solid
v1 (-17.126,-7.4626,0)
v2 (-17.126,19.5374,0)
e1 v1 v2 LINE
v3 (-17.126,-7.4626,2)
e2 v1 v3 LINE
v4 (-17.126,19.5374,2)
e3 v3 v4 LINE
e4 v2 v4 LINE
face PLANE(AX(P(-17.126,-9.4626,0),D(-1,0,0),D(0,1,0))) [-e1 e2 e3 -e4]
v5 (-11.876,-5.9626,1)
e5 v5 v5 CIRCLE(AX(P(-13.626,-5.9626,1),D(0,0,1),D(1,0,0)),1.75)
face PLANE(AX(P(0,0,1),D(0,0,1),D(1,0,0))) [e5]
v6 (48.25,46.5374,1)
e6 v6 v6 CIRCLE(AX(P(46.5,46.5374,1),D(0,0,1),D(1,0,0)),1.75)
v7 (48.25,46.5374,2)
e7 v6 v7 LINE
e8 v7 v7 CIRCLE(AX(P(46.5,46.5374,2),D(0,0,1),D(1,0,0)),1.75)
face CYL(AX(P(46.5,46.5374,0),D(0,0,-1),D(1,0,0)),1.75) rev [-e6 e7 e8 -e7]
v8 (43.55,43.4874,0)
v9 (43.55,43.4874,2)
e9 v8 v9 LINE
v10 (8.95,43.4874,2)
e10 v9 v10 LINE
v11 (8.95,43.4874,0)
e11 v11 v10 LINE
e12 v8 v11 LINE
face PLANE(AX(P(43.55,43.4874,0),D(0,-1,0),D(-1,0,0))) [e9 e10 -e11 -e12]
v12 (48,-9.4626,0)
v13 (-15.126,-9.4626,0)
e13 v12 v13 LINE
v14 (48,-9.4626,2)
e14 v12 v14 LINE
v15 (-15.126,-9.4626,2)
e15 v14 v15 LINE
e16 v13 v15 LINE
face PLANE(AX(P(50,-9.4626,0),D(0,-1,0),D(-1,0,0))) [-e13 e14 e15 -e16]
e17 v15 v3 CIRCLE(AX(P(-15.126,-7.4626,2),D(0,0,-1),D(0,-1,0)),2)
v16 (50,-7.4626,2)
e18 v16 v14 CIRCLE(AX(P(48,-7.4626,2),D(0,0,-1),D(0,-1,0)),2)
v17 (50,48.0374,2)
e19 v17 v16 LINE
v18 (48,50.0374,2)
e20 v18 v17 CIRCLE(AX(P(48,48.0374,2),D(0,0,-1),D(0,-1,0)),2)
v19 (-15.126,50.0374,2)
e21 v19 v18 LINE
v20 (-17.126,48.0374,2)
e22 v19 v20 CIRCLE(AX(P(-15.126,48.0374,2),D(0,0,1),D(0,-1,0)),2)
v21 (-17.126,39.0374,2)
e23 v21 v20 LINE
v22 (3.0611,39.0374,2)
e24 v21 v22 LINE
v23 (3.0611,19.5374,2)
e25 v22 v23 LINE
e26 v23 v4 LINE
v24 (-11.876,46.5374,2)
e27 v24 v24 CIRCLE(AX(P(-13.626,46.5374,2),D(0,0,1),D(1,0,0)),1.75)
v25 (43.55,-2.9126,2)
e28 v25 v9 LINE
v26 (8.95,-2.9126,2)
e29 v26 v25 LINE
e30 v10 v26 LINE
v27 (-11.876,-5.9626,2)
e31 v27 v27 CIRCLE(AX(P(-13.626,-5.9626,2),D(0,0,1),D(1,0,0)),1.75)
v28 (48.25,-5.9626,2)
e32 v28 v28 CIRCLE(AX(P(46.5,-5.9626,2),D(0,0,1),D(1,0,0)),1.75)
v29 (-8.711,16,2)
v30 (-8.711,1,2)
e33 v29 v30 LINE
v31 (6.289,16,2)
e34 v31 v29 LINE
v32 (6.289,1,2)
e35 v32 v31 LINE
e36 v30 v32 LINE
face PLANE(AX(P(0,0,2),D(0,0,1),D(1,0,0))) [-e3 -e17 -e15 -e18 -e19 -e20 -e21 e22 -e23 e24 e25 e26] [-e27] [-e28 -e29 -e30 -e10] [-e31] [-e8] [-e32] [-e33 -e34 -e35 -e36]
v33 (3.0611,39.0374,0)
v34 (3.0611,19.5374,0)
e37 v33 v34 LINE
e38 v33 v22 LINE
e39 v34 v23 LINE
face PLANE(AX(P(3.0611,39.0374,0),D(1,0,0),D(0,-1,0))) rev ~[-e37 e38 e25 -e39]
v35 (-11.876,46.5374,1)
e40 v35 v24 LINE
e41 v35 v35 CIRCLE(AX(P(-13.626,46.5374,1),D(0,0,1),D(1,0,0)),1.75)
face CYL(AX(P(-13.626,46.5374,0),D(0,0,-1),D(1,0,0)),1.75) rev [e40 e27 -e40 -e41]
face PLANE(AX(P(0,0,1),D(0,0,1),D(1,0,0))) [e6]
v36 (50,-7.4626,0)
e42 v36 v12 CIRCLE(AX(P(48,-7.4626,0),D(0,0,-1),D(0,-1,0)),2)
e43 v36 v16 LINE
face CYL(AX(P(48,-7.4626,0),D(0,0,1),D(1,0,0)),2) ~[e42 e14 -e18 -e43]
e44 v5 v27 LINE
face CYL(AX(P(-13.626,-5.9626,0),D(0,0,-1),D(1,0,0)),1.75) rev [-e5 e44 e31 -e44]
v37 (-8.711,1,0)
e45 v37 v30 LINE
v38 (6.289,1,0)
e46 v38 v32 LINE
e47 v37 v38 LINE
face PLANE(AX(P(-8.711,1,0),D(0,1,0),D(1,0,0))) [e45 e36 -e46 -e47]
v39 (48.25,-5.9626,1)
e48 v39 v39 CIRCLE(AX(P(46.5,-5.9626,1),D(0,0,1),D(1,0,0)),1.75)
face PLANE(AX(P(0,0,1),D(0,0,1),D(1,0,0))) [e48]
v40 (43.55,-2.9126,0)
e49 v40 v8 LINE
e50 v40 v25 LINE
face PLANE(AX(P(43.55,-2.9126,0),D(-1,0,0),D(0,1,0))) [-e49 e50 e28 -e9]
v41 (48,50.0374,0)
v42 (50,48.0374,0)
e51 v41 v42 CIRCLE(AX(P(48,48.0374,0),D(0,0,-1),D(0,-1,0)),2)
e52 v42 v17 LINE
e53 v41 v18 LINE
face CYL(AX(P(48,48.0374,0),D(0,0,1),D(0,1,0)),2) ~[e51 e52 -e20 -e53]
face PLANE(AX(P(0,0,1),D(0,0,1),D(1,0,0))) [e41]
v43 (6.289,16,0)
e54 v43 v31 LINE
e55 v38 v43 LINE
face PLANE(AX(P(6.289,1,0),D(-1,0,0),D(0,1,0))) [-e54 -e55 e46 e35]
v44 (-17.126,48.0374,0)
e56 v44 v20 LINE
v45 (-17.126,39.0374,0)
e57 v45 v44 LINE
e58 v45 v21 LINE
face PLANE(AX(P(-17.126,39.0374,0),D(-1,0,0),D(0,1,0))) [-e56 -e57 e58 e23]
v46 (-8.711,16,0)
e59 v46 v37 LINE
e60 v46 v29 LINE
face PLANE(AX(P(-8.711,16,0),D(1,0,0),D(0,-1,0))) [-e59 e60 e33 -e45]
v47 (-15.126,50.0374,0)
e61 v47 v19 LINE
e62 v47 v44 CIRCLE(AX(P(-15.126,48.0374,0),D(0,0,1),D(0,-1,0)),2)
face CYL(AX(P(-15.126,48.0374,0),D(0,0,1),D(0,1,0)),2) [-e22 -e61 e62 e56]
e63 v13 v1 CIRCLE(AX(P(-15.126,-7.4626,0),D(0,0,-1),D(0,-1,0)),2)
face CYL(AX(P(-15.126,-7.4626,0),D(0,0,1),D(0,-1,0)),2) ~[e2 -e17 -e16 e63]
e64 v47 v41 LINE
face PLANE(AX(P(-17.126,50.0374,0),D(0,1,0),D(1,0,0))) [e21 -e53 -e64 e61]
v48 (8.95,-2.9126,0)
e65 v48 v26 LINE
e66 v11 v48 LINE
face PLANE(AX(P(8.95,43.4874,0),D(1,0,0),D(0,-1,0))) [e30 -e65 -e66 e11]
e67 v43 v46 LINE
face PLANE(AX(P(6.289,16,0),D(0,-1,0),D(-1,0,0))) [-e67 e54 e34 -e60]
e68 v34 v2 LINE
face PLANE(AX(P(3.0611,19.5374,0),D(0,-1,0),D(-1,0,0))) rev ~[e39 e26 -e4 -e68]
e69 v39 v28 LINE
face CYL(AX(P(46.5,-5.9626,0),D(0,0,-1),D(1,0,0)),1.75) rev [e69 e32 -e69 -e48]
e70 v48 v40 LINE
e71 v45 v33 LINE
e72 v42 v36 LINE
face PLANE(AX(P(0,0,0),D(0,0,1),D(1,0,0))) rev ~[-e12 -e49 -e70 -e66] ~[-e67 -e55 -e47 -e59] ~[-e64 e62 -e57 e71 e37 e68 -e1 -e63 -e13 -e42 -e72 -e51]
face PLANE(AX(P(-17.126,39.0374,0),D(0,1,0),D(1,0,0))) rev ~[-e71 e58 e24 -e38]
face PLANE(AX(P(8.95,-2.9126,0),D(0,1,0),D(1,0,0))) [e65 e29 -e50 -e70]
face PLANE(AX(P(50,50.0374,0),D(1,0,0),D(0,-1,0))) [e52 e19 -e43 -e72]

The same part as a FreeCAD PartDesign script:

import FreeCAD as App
import Part
import Sketcher
from FreeCAD import Vector
Q = App.Units.Quantity


def edges_at(feature, points):
    """Names of the edges that pass closest to the given points."""
    edges = feature.Shape.Edges
    near = lambda p: min(range(len(edges)), key=lambda i: edges[i].distToShape(Part.Vertex(*p))[0])
    return sorted({f"Edge{near(p) + 1}" for p in points})


def add_polygon(sketch, points):
    """Adds a closed chain of lines whose ends are joined by coincident constraints."""
    first, n = sketch.GeometryCount, len(points)
    for a, b in zip(points, points[1:] + points[:1]):
        sketch.addGeometry(Part.LineSegment(App.Vector(*a, 0), App.Vector(*b, 0)), False)
    for i in range(n):
        sketch.addConstraint(Sketcher.Constraint("Coincident", first + i, 2, first + (i + 1) % n, 1))

doc = App.newDocument("Part")
body = doc.addObject("PartDesign::Body", "Body")

sketch1 = body.newObject("Sketcher::SketchObject", "Sketch")
sketch1.AttachmentSupport = (doc.getObject("XY_Plane"), [""])
sketch1.MapMode = "FlatFace"
add_polygon(sketch1, [(50, 50.0374), (-17.126, 50.0374), (-17.126, 39.0374), (3.0611, 39.0374), (3.0611, 19.5374), (-17.126, 19.5374), (-17.126, -9.4626), (50, -9.4626)])
sketch1.addGeometry(Part.Circle(Vector(-13.626, -5.9626, 0), Vector(0, 0, 1), 1.75), False)
add_polygon(sketch1, [(-8.711, 16), (6.289, 16), (6.289, 1), (-8.711, 1)])
sketch1.addGeometry(Part.Circle(Vector(46.5, -5.9626, 0), Vector(0, 0, 1), 1.75), False)
sketch1.addGeometry(Part.Circle(Vector(-13.626, 46.5374, 0), Vector(0, 0, 1), 1.75), False)
add_polygon(sketch1, [(8.95, 43.4874), (43.55, 43.4874), (43.55, -2.9126), (8.95, -2.9126)])
sketch1.addGeometry(Part.Circle(Vector(46.5, 46.5374, 0), Vector(0, 0, 1), 1.75), False)
sketch1.addConstraint(Sketcher.Constraint("Horizontal", 0))
sketch1.addConstraint(Sketcher.Constraint("Vertical", 1))
sketch1.addConstraint(Sketcher.Constraint("Horizontal", 2))
sketch1.addConstraint(Sketcher.Constraint("Vertical", 3))
sketch1.addConstraint(Sketcher.Constraint("Horizontal", 4))
sketch1.addConstraint(Sketcher.Constraint("Vertical", 5))
sketch1.addConstraint(Sketcher.Constraint("Horizontal", 6))
sketch1.addConstraint(Sketcher.Constraint("Vertical", 7))
sketch1.addConstraint(Sketcher.Constraint("Horizontal", 9))
sketch1.addConstraint(Sketcher.Constraint("Vertical", 10))
sketch1.addConstraint(Sketcher.Constraint("Horizontal", 11))
sketch1.addConstraint(Sketcher.Constraint("Vertical", 12))
sketch1.addConstraint(Sketcher.Constraint("Horizontal", 15))
sketch1.addConstraint(Sketcher.Constraint("Vertical", 16))
sketch1.addConstraint(Sketcher.Constraint("Horizontal", 17))
sketch1.addConstraint(Sketcher.Constraint("Vertical", 18))
sketch1.addConstraint(Sketcher.Constraint("Equal", 8, 13))
sketch1.addConstraint(Sketcher.Constraint("Equal", 13, 14))
sketch1.addConstraint(Sketcher.Constraint("Equal", 14, 19))
sketch1.addConstraint(Sketcher.Constraint("Horizontal", 8, 3, 13, 3))
sketch1.addConstraint(Sketcher.Constraint("Horizontal", 14, 3, 19, 3))
sketch1.addConstraint(Sketcher.Constraint("Vertical", 8, 3, 14, 3))
sketch1.addConstraint(Sketcher.Constraint("Vertical", 13, 3, 19, 3))
sketch1.addConstraint(Sketcher.Constraint("Vertical", 1, 2, 4, 2))
sketch1.addConstraint(Sketcher.Constraint("Equal", 11, 10))
sketch1.addConstraint(Sketcher.Constraint("Diameter", 8, Q("3.5 mm")))
sketch1.addConstraint(Sketcher.Constraint("DistanceX", 9, 1, 9, 2, Q("15 mm")))
sketch1.addConstraint(Sketcher.Constraint("DistanceY", 1, 2, 1, 1, Q("11 mm")))
sketch1.addConstraint(Sketcher.Constraint("DistanceX", 15, 1, 15, 2, Q("34.6 mm")))
sketch1.addConstraint(Sketcher.Constraint("DistanceY", 3, 2, 3, 1, Q("19.5 mm")))
sketch1.addConstraint(Sketcher.Constraint("DistanceY", 7, 1, 7, 2, Q("59.5 mm")))
sketch1.addConstraint(Sketcher.Constraint("DistanceY", 16, 2, 16, 1, Q("46.4 mm")))
sketch1.addConstraint(Sketcher.Constraint("DistanceX", 0, 2, 14, 3, Q("3.5 mm")))
sketch1.addConstraint(Sketcher.Constraint("DistanceY", 14, 3, 0, 2, Q("3.5 mm")))
sketch1.addConstraint(Sketcher.Constraint("DistanceY", 5, 2, 8, 3, Q("3.5 mm")))
sketch1.addConstraint(Sketcher.Constraint("DistanceX", 13, 3, 6, 2, Q("3.5 mm")))
sketch1.addConstraint(Sketcher.Constraint("DistanceX", 0, 2, 0, 1, Q("67.126 mm")))
sketch1.addConstraint(Sketcher.Constraint("DistanceX", 15, 2, 7, 2, Q("6.45 mm")))
sketch1.addConstraint(Sketcher.Constraint("DistanceY", 15, 2, 7, 2, Q("6.55 mm")))
sketch1.addConstraint(Sketcher.Constraint("DistanceX", -1, 1, 6, 2, Q("50 mm")))
sketch1.addConstraint(Sketcher.Constraint("DistanceY", -1, 1, 9, 2, Q("16 mm")))
sketch1.addConstraint(Sketcher.Constraint("DistanceX", 5, 2, 11, 2, Q("8.415 mm")))
sketch1.addConstraint(Sketcher.Constraint("DistanceX", 2, 1, 2, 2, Q("20.187 mm")))
sketch1.addConstraint(Sketcher.Constraint("DistanceY", 8, 3, -1, 1, Q("5.9626 mm")))
pad1 = body.newObject("PartDesign::Pad", "Pad")
pad1.Profile = sketch1
pad1.Length = 2
doc.recompute()

fillet = body.newObject("PartDesign::Fillet", "Fillet")
fillet.Base = (pad1, edges_at(pad1, [
    (50, -9.463, 1),
    (-17.126, -9.463, 1),
    (50, 50.037, 1),
    (-17.126, 50.037, 1),
]))
fillet.Radius = 2

sketch2 = body.newObject("Sketcher::SketchObject", "Sketch001")
sketch2.AttachmentSupport = (doc.getObject("XY_Plane"), [""])
sketch2.MapMode = "FlatFace"
sketch2.addGeometry(Part.Circle(Vector(-13.626, 46.5374, 0), Vector(0, 0, 1), 1.75), False)
sketch2.addGeometry(Part.Circle(Vector(46.5, 46.5374, 0), Vector(0, 0, 1), 1.75), False)
sketch2.addGeometry(Part.Circle(Vector(46.5, -5.9626, 0), Vector(0, 0, 1), 1.75), False)
sketch2.addGeometry(Part.Circle(Vector(-13.626, -5.9626, 0), Vector(0, 0, 1), 1.75), False)
sketch2.addConstraint(Sketcher.Constraint("Equal", 0, 1))
sketch2.addConstraint(Sketcher.Constraint("Equal", 1, 2))
sketch2.addConstraint(Sketcher.Constraint("Equal", 2, 3))
sketch2.addConstraint(Sketcher.Constraint("Horizontal", 0, 3, 1, 3))
sketch2.addConstraint(Sketcher.Constraint("Horizontal", 2, 3, 3, 3))
sketch2.addConstraint(Sketcher.Constraint("Vertical", 1, 3, 2, 3))
sketch2.addConstraint(Sketcher.Constraint("Vertical", 0, 3, 3, 3))
sketch2.addConstraint(Sketcher.Constraint("Diameter", 0, Q("3.5 mm")))
sketch2.addConstraint(Sketcher.Constraint("DistanceX", -1, 1, 1, 3, Q("46.5 mm")))
sketch2.addConstraint(Sketcher.Constraint("DistanceY", 2, 3, 1, 3, Q("52.5 mm")))
sketch2.addConstraint(Sketcher.Constraint("DistanceX", 0, 3, -1, 1, Q("13.626 mm")))
sketch2.addConstraint(Sketcher.Constraint("DistanceY", -1, 1, 0, 3, Q("46.5374 mm")))
pad2 = body.newObject("PartDesign::Pad", "Pad001")
pad2.Profile = sketch2
pad2.Length = 1

doc.recompute()
